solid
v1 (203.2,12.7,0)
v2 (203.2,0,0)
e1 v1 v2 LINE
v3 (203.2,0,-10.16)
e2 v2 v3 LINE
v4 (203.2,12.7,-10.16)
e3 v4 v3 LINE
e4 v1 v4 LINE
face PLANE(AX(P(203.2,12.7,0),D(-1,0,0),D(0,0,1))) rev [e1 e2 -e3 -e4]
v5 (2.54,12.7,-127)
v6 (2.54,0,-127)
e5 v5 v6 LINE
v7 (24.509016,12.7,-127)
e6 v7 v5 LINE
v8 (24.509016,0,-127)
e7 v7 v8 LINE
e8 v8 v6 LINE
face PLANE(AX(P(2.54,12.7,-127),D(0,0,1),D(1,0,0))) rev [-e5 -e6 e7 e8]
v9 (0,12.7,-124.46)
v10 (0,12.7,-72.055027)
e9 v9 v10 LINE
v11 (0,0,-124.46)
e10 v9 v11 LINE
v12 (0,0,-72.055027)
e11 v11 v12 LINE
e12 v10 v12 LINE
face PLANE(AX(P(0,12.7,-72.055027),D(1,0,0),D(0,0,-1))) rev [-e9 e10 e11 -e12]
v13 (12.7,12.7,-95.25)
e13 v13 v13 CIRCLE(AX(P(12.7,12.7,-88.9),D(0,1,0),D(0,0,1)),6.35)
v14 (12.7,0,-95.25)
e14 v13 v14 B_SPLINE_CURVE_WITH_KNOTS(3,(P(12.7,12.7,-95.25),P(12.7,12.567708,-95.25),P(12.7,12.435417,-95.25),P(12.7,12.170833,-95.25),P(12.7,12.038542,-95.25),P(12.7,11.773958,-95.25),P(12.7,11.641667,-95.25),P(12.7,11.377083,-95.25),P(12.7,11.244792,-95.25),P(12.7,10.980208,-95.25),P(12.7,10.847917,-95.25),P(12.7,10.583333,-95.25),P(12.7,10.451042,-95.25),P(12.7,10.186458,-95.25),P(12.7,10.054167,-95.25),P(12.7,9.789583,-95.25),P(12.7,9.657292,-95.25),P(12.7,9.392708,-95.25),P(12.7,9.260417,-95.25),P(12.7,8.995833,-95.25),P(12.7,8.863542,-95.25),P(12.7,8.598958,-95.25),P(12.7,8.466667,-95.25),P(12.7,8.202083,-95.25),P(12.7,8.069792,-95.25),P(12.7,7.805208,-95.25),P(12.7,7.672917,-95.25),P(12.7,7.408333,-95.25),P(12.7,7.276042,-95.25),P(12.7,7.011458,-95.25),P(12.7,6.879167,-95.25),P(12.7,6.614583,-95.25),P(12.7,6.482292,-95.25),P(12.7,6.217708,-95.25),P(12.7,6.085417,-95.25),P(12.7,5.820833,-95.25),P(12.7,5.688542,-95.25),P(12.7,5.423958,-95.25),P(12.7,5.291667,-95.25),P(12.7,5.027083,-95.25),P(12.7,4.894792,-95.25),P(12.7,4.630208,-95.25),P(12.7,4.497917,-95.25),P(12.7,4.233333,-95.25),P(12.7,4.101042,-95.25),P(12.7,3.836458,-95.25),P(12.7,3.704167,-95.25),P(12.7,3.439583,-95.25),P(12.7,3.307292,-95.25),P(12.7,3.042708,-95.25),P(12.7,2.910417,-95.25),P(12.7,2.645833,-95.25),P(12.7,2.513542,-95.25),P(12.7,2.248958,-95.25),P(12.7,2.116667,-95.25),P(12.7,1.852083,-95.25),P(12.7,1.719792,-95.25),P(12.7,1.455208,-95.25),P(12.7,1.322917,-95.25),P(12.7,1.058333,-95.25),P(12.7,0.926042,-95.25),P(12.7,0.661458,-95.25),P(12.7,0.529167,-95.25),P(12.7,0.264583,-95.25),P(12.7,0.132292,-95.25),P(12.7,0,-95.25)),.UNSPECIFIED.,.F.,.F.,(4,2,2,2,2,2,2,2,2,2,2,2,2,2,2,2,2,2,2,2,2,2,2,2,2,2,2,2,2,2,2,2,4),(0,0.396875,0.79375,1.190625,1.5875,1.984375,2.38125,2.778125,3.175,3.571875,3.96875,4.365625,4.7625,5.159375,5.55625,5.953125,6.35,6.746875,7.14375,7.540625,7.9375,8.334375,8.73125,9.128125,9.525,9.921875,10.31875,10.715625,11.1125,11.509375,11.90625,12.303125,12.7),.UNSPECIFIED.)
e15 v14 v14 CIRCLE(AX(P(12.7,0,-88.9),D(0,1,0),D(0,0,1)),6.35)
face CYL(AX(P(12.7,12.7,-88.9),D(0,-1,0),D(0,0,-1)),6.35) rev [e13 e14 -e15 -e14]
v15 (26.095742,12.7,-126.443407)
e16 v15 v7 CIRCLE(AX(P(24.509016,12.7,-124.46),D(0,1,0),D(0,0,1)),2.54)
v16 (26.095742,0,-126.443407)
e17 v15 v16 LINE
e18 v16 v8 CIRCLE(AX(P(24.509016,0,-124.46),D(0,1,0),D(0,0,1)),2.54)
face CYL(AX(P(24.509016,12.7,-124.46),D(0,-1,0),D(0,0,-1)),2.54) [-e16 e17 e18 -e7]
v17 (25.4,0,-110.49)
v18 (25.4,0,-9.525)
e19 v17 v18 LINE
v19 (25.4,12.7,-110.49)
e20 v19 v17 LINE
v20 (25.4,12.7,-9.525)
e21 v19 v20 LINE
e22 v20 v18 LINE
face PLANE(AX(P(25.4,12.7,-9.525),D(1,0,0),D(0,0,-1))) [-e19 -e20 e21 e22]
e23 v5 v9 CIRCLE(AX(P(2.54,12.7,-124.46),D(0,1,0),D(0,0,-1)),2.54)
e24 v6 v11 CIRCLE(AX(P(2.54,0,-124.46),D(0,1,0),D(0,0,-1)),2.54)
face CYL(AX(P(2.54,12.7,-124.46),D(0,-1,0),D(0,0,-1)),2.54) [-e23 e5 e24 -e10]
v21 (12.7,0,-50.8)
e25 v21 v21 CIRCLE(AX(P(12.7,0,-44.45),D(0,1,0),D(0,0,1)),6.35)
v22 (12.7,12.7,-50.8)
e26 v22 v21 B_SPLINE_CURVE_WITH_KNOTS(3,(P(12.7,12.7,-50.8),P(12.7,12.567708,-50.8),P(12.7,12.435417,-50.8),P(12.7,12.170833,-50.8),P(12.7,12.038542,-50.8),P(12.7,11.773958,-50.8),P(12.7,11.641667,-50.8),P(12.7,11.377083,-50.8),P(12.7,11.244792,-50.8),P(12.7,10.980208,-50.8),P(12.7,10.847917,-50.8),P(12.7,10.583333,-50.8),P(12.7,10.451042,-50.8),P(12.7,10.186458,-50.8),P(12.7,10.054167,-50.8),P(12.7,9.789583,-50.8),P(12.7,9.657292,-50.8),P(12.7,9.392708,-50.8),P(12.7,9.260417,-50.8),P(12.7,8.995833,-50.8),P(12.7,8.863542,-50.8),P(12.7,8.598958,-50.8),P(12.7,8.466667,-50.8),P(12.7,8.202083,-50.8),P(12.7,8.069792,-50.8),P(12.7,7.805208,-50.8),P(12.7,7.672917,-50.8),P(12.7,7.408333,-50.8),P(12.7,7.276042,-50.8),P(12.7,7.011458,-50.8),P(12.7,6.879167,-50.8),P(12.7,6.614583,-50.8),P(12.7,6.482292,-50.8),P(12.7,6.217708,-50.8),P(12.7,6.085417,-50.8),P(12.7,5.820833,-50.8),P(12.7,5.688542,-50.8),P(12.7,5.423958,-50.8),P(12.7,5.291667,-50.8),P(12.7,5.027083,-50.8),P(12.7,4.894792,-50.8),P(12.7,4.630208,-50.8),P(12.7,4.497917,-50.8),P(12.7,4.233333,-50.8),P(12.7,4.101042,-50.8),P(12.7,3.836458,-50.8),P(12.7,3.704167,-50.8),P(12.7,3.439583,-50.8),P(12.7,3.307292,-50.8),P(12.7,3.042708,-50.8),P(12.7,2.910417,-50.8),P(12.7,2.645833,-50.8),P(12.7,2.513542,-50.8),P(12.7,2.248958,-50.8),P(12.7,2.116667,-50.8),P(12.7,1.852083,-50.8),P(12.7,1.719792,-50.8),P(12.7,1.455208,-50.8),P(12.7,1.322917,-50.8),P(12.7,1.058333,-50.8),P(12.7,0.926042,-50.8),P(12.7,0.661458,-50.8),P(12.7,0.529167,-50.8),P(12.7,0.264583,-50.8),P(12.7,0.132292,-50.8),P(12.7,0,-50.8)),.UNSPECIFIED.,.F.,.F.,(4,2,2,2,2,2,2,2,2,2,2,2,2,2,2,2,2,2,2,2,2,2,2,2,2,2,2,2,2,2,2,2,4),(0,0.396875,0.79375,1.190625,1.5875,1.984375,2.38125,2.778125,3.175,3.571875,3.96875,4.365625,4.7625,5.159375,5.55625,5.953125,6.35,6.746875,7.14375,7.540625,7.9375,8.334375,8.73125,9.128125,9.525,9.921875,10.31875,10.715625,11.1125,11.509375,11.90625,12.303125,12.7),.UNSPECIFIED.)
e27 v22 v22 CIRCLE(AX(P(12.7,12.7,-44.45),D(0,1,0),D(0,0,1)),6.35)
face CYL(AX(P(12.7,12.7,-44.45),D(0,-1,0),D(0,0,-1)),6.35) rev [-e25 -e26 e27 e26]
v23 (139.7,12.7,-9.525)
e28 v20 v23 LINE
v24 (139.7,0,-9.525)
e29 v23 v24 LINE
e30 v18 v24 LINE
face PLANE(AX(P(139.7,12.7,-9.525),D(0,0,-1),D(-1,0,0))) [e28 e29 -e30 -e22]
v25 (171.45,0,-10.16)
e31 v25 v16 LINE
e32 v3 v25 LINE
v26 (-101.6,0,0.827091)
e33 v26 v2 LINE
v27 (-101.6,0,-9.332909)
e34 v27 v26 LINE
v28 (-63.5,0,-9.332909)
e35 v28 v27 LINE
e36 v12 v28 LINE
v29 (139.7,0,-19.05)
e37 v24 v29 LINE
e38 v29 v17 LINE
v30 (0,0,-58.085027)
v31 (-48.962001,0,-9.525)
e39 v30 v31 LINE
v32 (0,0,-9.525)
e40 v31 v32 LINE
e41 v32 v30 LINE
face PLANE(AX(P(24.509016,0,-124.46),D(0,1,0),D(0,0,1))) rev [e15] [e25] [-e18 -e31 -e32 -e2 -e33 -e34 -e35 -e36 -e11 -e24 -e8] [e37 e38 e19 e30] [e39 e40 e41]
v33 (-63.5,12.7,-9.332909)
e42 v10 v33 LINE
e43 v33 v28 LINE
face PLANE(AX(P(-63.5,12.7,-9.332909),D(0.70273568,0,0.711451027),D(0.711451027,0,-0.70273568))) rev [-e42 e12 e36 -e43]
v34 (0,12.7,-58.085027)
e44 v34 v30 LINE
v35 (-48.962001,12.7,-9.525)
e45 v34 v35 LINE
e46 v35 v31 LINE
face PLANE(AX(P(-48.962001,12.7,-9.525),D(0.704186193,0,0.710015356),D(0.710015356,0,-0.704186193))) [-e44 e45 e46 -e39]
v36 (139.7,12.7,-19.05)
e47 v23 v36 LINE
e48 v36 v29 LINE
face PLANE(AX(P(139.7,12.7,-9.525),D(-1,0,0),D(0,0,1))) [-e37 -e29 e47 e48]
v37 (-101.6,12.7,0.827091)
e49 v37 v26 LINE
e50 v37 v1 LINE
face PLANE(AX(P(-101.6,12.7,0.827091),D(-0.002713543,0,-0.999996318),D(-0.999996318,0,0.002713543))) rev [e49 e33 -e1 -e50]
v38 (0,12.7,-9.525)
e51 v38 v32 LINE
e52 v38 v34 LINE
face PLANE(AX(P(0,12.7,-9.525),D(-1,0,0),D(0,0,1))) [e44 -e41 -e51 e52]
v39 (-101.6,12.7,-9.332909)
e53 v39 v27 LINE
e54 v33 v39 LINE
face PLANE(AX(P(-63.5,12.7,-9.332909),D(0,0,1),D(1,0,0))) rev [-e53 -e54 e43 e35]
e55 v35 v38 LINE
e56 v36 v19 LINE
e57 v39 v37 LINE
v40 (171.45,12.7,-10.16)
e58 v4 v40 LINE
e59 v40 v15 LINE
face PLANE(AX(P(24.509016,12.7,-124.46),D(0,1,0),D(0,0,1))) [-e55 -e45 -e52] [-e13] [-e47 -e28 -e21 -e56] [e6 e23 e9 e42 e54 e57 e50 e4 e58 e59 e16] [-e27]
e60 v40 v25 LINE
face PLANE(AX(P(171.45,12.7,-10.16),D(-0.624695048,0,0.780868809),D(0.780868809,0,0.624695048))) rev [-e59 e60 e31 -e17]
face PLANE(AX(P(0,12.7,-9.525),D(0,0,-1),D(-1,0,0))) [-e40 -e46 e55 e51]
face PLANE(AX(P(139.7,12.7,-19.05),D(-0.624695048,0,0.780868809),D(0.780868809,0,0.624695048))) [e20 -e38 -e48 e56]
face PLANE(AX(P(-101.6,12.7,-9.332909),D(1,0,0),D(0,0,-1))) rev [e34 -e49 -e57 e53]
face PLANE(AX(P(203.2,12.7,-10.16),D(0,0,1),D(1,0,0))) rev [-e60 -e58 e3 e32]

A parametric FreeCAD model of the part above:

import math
import FreeCAD as App
import Part
import Sketcher

V = App.Vector
Q = App.Units.Quantity


def add_polygon(sketch, points):
    """Adds a closed chain of lines whose ends are joined by coincident constraints."""
    first, n = sketch.GeometryCount, len(points)
    for a, b in zip(points, points[1:] + points[:1]):
        sketch.addGeometry(Part.LineSegment(App.Vector(*a, 0), App.Vector(*b, 0)), False)
    for i in range(n):
        sketch.addConstraint(Sketcher.Constraint("Coincident", first + i, 2, first + (i + 1) % n, 1))

doc = App.newDocument("Part")
params = doc.addObject("Spreadsheet::Sheet", "Params")
for row, (alias, value) in enumerate([
    ("sketch1_diameter", "0.5 in"),
    ("sketch1_radius", "0.1 in"),
    ("sketch1_width", "1.5 in"),
    ("sketch1_width2", "4.5 in"),
    ("sketch1_height", "0.4 in"),
    ("pad1_length", "0.5 in"),
], start=1):
    params.set(f"A{row}", alias)
    params.set(f"B{row}", "=" + value)
    params.setAlias(f"B{row}", alias)

body = doc.addObject("PartDesign::Body", "Body")

# Sketch on XZ plane
sketch1 = doc.addObject("Sketcher::SketchObject", "Sketch")
body.addObject(sketch1)
sketch1.AttachmentSupport = (doc.XZ_Plane, [""])
sketch1.MapMode = "FlatFace"
sketch1.addGeometry(Part.LineSegment(V(171.4, -10.2, 0), V(26.1, -126.4, 0)), False)  # 0
sketch1.addGeometry(Part.ArcOfCircle(Part.Circle(V(24.5, -124.5, 0), V(0, 0, 1), 2.5), math.radians(-90), math.radians(-51)), False)  # 1
sketch1.addGeometry(Part.LineSegment(V(24.5, -127, 0), V(2.5, -127, 0)), False)  # 2
sketch1.addGeometry(Part.ArcOfCircle(Part.Circle(V(2.5, -124.5, 0), V(0, 0, 1), 2.5), math.radians(-180), math.radians(-90)), False)  # 3
sketch1.addGeometry(Part.LineSegment(V(0, -124.5, 0), V(0, -72.1, 0)), False)  # 4
sketch1.addGeometry(Part.LineSegment(V(0, -72.1, 0), V(-63.5, -9.3, 0)), False)  # 5
sketch1.addGeometry(Part.LineSegment(V(-63.5, -9.3, 0), V(-101.6, -9.3, 0)), False)  # 6
sketch1.addGeometry(Part.LineSegment(V(-101.6, -9.3, 0), V(-101.6, 0.8, 0)), False)  # 7
sketch1.addGeometry(Part.LineSegment(V(-101.6, 0.8, 0), V(203.2, 0, 0)), False)  # 8
sketch1.addGeometry(Part.LineSegment(V(203.2, 0, 0), V(203.2, -10.2, 0)), False)  # 9
sketch1.addGeometry(Part.LineSegment(V(203.2, -10.2, 0), V(171.4, -10.2, 0)), False)  # 10
add_polygon(sketch1, [(0, -58.1), (0, -9.5), (-49, -9.5)])  # lines 11-13
sketch1.addGeometry(Part.Circle(V(12.7, -44.5, 0), V(0, 0, 1), 6.3), False)  # 14
sketch1.addGeometry(Part.Circle(V(12.7, -88.9, 0), V(0, 0, 1), 6.3), False)  # 15
add_polygon(sketch1, [(139.7, -9.5), (25.4, -9.5), (25.4, -110.5), (139.7, -19.1)])  # lines 16-19
sketch1.addConstraint(Sketcher.Constraint("Tangent", 0, 2, 1, 2))
sketch1.addConstraint(Sketcher.Constraint("Tangent", 1, 1, 2, 1))
sketch1.addConstraint(Sketcher.Constraint("Tangent", 2, 2, 3, 2))
sketch1.addConstraint(Sketcher.Constraint("Tangent", 3, 1, 4, 1))
sketch1.addConstraint(Sketcher.Constraint("Coincident", 4, 2, 5, 1))
sketch1.addConstraint(Sketcher.Constraint("Coincident", 5, 2, 6, 1))
sketch1.addConstraint(Sketcher.Constraint("Coincident", 6, 2, 7, 1))
sketch1.addConstraint(Sketcher.Constraint("Coincident", 7, 2, 8, 1))
sketch1.addConstraint(Sketcher.Constraint("Coincident", 8, 2, 9, 1))
sketch1.addConstraint(Sketcher.Constraint("Coincident", 9, 2, 10, 1))
sketch1.addConstraint(Sketcher.Constraint("Coincident", 10, 2, 0, 1))
sketch1.addConstraint(Sketcher.Constraint("Horizontal", 2))
sketch1.addConstraint(Sketcher.Constraint("Vertical", 4))
sketch1.addConstraint(Sketcher.Constraint("Horizontal", 6))
sketch1.addConstraint(Sketcher.Constraint("Vertical", 7))
sketch1.addConstraint(Sketcher.Constraint("Vertical", 9))
sketch1.addConstraint(Sketcher.Constraint("Horizontal", 10))
sketch1.addConstraint(Sketcher.Constraint("Vertical", 11))
sketch1.addConstraint(Sketcher.Constraint("Horizontal", 12))
sketch1.addConstraint(Sketcher.Constraint("Horizontal", 16))
sketch1.addConstraint(Sketcher.Constraint("Vertical", 17))
sketch1.addConstraint(Sketcher.Constraint("Vertical", 19))
sketch1.addConstraint(Sketcher.Constraint("Equal", 1, 3))
sketch1.addConstraint(Sketcher.Constraint("Equal", 14, 15))
sketch1.addConstraint(Sketcher.Constraint("PointOnObject", 3, 1, -2))
sketch1.addConstraint(Sketcher.Constraint("PointOnObject", 8, 2, -1))
sketch1.addConstraint(Sketcher.Constraint("PointOnObject", 11, 2, -2))
sketch1.addConstraint(Sketcher.Constraint("Parallel", 0, 18))
sketch1.addConstraint(Sketcher.Constraint("Horizontal", 12, 2, 16, 2))
sketch1.addConstraint(Sketcher.Constraint("Vertical", 14, 3, 15, 3))
sketch1.addConstraint(Sketcher.Constraint("Equal", 7, 9))
sketch1.addConstraint(Sketcher.Constraint("Diameter", 14, Q("0.5 in")))
sketch1.addConstraint(Sketcher.Constraint("Radius", 1, Q("0.1 in")))
sketch1.addConstraint(Sketcher.Constraint("DistanceX", 6, 2, 6, 1, Q("1.5 in")))
sketch1.addConstraint(Sketcher.Constraint("DistanceX", 16, 2, 16, 1, Q("4.5 in")))
sketch1.addConstraint(Sketcher.Constraint("DistanceY", 7, 1, 7, 2, Q("0.4 in")))
sketch1.addConstraint(Sketcher.Constraint("DistanceY", 1, 1, -1, 1, Q("5 in")))
sketch1.addConstraint(Sketcher.Constraint("DistanceX", 6, 2, -1, 1, Q("4 in")))
sketch1.addConstraint(Sketcher.Constraint("DistanceX", -1, 1, 8, 2, Q("8 in")))
sketch1.addConstraint(Sketcher.Constraint("DistanceX", -1, 1, 16, 2, Q("1 in")))
sketch1.addConstraint(Sketcher.Constraint("DistanceX", 5, 2, 14, 3, Q("3 in")))
sketch1.addConstraint(Sketcher.Constraint("DistanceY", 14, 3, 18, 2, Q("1 in")))
sketch1.addConstraint(Sketcher.Constraint("DistanceX", 10, 2, 10, 1, Q("1.25 in")))
sketch1.addConstraint(Sketcher.Constraint("DistanceY", 15, 3, -1, 1, Q("3.5 in")))
sketch1.addConstraint(Sketcher.Constraint("DistanceY", 17, 2, 17, 1, Q("3.975 in")))
sketch1.addConstraint(Sketcher.Constraint("DistanceY", 19, 1, 19, 2, Q("0.375 in")))
sketch1.addConstraint(Sketcher.Constraint("DistanceY", 14, 3, -1, 1, Q("1.75 in")))
sketch1.addConstraint(Sketcher.Constraint("DistanceY", 4, 2, 13, 2, Q("0.55 in")))
sketch1.addConstraint(Sketcher.Constraint("DistanceX", 12, 2, 12, 1, 48.962001))
sketch1.addConstraint(Sketcher.Constraint("Distance", 5, 89.254211))
sketch1.addConstraint(Sketcher.Constraint("DistanceY", 4, 1, 4, 2, 52.404973))
sketch1.setExpression("Constraints[38]", "Params.sketch1_diameter")
sketch1.setExpression("Constraints[39]", "Params.sketch1_radius")
sketch1.setExpression("Constraints[40]", "Params.sketch1_width")
sketch1.setExpression("Constraints[41]", "Params.sketch1_width2")
sketch1.setExpression("Constraints[42]", "Params.sketch1_height")
pad1 = doc.addObject("PartDesign::Pad", "Pad")
body.addObject(pad1)
pad1.Profile = sketch1
pad1.setExpression("Length", "Params.pad1_length")
pad1.Reversed = True

doc.recompute()
